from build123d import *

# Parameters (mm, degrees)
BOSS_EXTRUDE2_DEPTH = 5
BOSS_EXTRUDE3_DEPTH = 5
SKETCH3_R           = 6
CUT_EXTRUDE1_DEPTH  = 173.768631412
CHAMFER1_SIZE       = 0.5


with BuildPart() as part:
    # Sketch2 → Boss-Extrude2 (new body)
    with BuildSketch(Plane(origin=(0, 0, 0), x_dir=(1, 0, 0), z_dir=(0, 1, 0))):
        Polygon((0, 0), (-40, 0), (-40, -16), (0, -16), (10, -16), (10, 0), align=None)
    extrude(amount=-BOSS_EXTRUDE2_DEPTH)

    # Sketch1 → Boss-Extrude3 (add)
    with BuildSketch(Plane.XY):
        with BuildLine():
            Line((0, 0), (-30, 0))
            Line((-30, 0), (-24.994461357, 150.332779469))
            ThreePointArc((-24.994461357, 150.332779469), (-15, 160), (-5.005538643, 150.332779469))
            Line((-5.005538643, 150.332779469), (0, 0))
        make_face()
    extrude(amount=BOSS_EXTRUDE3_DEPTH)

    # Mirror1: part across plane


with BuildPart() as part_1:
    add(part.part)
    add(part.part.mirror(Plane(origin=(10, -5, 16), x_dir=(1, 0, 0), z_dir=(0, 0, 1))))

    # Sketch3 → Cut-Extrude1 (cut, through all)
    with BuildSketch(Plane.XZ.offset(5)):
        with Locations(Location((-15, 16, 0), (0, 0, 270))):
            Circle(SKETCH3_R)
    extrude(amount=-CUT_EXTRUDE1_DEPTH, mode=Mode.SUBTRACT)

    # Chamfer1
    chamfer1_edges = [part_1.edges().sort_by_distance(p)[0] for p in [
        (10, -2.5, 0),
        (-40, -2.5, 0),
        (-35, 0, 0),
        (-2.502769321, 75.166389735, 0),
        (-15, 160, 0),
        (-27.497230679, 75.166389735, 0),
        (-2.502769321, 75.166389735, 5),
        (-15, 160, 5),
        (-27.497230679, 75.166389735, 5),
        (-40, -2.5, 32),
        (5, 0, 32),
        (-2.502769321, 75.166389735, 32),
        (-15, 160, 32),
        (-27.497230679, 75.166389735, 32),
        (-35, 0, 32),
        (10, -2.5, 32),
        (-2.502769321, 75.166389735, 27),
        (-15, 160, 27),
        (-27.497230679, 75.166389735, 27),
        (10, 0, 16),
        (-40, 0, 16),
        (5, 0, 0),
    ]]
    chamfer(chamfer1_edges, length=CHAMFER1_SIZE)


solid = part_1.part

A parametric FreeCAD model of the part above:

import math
import FreeCAD as App
import Part
import Sketcher


def edges_at(feature, points):
    """Names of the edges that pass closest to the given points."""
    edges = feature.Shape.Edges
    near = lambda p: min(range(len(edges)), key=lambda i: edges[i].distToShape(Part.Vertex(*p))[0])
    return sorted({f"Edge{near(p) + 1}" for p in points})

doc = App.newDocument("Part")
body = doc.addObject("PartDesign::Body", "Body")

sketch1 = body.newObject("Sketcher::SketchObject", "Sketch")
sketch1.AttachmentSupport = (doc.getObject("XZ_Plane"), [""])
sketch1.MapMode = "FlatFace"
sketch1.addGeometry([
    Part.LineSegment(App.Vector(-40, 0, 0), App.Vector(-40, 16, 0)),
    Part.LineSegment(App.Vector(-40, 16, 0), App.Vector(10, 16, 0)),
    Part.LineSegment(App.Vector(10, 16, 0), App.Vector(10, 0, 0)),
    Part.LineSegment(App.Vector(10, 0, 0), App.Vector(-40, 0, 0)),
], False)
sketch1.addConstraint([
    Sketcher.Constraint("Coincident", 0, 2, 1, 1),
    Sketcher.Constraint("Coincident", 1, 2, 2, 1),
    Sketcher.Constraint("Coincident", 2, 2, 3, 1),
    Sketcher.Constraint("Coincident", 3, 2, 0, 1),
    Sketcher.Constraint("Vertical", 0),
    Sketcher.Constraint("Horizontal", 1),
    Sketcher.Constraint("Vertical", 2),
    Sketcher.Constraint("Horizontal", 3),
    Sketcher.Constraint("PointOnObject", 2, 2, -1),
    Sketcher.Constraint("DistanceX", 1, 1, 1, 2, 50.0),
    Sketcher.Constraint("DistanceY", 0, 1, 0, 2, 16.0),
    Sketcher.Constraint("DistanceX", 0, 2, -1, 1, 40.0),
])
pad1 = body.newObject("PartDesign::Pad", "Pad")
pad1.Profile = sketch1
pad1.Length = 5

sketch2 = body.newObject("Sketcher::SketchObject", "Sketch001")
sketch2.AttachmentSupport = (doc.getObject("XY_Plane"), [""])
sketch2.MapMode = "FlatFace"
sketch2.addGeometry([
    Part.LineSegment(App.Vector(-30, 0, 0), App.Vector(0, 0, 0)),
    Part.LineSegment(App.Vector(0, 0, 0), App.Vector(-5, 150, 0)),
    Part.ArcOfCircle(Part.Circle(App.Vector(-15, 150, 0), App.Vector(0, 0, 1), 10), math.radians(2), math.radians(178)),
    Part.LineSegment(App.Vector(-25, 150, 0), App.Vector(-30, 0, 0)),
], False)
sketch2.addConstraint([
    Sketcher.Constraint("Coincident", 0, 2, 1, 1),
    Sketcher.Constraint("Tangent", 1, 2, 2, 1),
    Sketcher.Constraint("Tangent", 2, 2, 3, 1),
    Sketcher.Constraint("Coincident", 3, 2, 0, 1),
    Sketcher.Constraint("Horizontal", 0),
    Sketcher.Constraint("Coincident", 0, 2, -1, 1),
    Sketcher.Constraint("Horizontal", 1, 2, 2, 2),
    Sketcher.Constraint("Radius", 2, 10.0),
    Sketcher.Constraint("DistanceX", 0, 1, 0, 2, 30.0),
    Sketcher.Constraint("DistanceY", -1, 1, 2, 3, 150.0),
])
pad2 = body.newObject("PartDesign::Pad", "Pad001")
pad2.Profile = sketch2
pad2.Length = 5
body2 = doc.addObject("PartDesign::Body", "Body001")
doc.recompute()

body2.BaseFeature = body
doc.recompute()

mirroring = doc.addObject("Part::Mirroring", "Mirroring")
mirroring.Source = body
mirroring.Base = App.Vector(10, -5, 16)
mirroring.Normal = App.Vector(0, 0, 1)
body3 = doc.addObject("PartDesign::Body", "Body002")
body3.BaseFeature = mirroring
boolean = body2.newObject("PartDesign::Boolean", "Boolean")
boolean.Type = "Fuse"
boolean.addObjects([body3])
doc.recompute()

sketch3 = body2.newObject("Sketcher::SketchObject", "Sketch002")
sketch3.AttachmentSupport = (doc.getObject("XZ_Plane001"), [""])
sketch3.MapMode = "FlatFace"
sketch3.AttachmentOffset = App.Placement(App.Vector(0, 0, 5), App.Rotation())
sketch3.addGeometry(Part.Circle(App.Vector(-15, 16, 0), App.Vector(0, 0, 1), 6), False)
sketch3.addConstraint([
    Sketcher.Constraint("Diameter", 0, 12.0),
    Sketcher.Constraint("DistanceX", 0, 3, -1, 1, 15.0),
    Sketcher.Constraint("DistanceY", -1, 1, 0, 3, 16.0),
])
pocket1 = body2.newObject("PartDesign::Pocket", "Pocket")
pocket1.Profile = sketch3
pocket1.Type = "ThroughAll"
doc.recompute()

chamfer = body2.newObject("PartDesign::Chamfer", "Chamfer")
chamfer.Base = (pocket1, edges_at(pocket1, [
    (10, -2.5, 0),
    (-40, -2.5, 0),
    (-35, 0, 0),
    (-2.503, 75.166, 0),
    (-15, 160, 0),
    (-27.497, 75.166, 0),
    (-2.503, 75.166, 5),
    (-15, 160, 5),
    (-27.497, 75.166, 5),
    (-40, -2.5, 32),
    (5, 0, 32),
    (-2.503, 75.166, 32),
    (-15, 160, 32),
    (-27.497, 75.166, 32),
    (-35, 0, 32),
    (10, -2.5, 32),
    (-2.503, 75.166, 27),
    (-15, 160, 27),
    (-27.497, 75.166, 27),
    (10, 0, 16),
    (-40, 0, 16),
    (5, 0, 0),
]))
chamfer.Size = 0.5
mirroring.Visibility = False

doc.recompute()
